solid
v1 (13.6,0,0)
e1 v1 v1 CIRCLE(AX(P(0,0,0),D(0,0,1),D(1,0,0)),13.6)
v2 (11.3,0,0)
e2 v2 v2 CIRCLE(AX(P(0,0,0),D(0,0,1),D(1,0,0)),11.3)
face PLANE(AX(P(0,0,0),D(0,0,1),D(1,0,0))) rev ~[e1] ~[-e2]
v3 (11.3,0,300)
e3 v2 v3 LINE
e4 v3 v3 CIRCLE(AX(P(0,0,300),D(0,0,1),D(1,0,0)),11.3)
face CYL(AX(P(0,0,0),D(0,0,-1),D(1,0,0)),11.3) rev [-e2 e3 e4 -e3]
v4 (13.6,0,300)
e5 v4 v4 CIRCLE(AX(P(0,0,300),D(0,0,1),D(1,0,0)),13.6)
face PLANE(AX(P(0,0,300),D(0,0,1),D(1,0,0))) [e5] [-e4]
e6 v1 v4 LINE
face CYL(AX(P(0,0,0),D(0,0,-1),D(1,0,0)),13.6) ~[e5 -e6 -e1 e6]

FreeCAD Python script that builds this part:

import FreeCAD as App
import Part
import Sketcher
Q = App.Units.Quantity

doc = App.newDocument("Part")
body = doc.addObject("PartDesign::Body", "Body")

# Sketch on XY plane
sketch1 = body.newObject("Sketcher::SketchObject", "Sketch")
sketch1.AttachmentSupport = (doc.getObject("XY_Plane"), [""])
sketch1.MapMode = "FlatFace"
sketch1.addGeometry([
    Part.Circle(App.Vector(0, 0, 0), App.Vector(0, 0, 1), 14),
    Part.Circle(App.Vector(0, 0, 0), App.Vector(0, 0, 1), 11),
], False)
sketch1.addConstraint([
    Sketcher.Constraint("Coincident", 0, 3, -1, 1),
    Sketcher.Constraint("Coincident", 1, 3, -1, 1),
    Sketcher.Constraint("Diameter", 0, Q("27.2 mm")),
    Sketcher.Constraint("Diameter", 1, Q("22.6 mm")),
])
pad1 = body.newObject("PartDesign::Pad", "Pad")
pad1.Profile = sketch1
pad1.Length = 300

doc.recompute()
